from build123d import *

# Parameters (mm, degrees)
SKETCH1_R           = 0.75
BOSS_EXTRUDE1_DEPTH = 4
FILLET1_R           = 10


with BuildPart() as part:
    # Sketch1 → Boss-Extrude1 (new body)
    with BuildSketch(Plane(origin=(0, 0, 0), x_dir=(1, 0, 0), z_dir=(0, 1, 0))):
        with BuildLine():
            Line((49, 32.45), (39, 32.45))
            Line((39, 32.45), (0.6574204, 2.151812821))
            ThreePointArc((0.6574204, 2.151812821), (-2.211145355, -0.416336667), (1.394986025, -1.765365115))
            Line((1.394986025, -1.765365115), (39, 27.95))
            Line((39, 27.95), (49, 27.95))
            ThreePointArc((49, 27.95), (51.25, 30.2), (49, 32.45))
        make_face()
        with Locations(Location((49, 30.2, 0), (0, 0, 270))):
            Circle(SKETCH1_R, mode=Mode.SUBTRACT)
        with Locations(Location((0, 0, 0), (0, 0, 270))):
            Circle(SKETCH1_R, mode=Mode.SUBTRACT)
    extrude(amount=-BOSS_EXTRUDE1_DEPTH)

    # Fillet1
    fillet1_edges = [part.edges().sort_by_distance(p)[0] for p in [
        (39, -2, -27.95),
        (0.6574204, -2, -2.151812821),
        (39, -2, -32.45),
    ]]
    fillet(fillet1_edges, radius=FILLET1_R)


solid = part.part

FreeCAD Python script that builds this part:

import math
import FreeCAD as App
import Part
import Sketcher

V = App.Vector


def edges_at(feature, points):
    """Names of the edges that pass closest to the given points."""
    edges = feature.Shape.Edges
    near = lambda p: min(range(len(edges)), key=lambda i: edges[i].distToShape(Part.Vertex(*p))[0])
    return sorted({f"Edge{near(p) + 1}" for p in points})

doc = App.newDocument("Part")
body = doc.addObject("PartDesign::Body", "Body")

# Sketch on XZ plane
sketch1 = body.newObject("Sketcher::SketchObject", "Sketch")
sketch1.AttachmentSupport = (doc.getObject("XZ_Plane"), [""])
sketch1.MapMode = "FlatFace"
sketch1.addGeometry(Part.LineSegment(V(49, -32.5, 0), V(39, -32.5, 0)), False)
sketch1.addGeometry(Part.LineSegment(V(39, -32.5, 0), V(0.7, -2.2, 0)), False)
sketch1.addGeometry(Part.ArcOfCircle(Part.Circle(V(0, 0, 0), V(0, 0, 1), 2.2), math.radians(52), math.radians(287)), False)
sketch1.addGeometry(Part.LineSegment(V(1.4, 1.8, 0), V(39, -27.9, 0)), False)
sketch1.addGeometry(Part.LineSegment(V(39, -27.9, 0), V(49, -27.9, 0)), False)
sketch1.addGeometry(Part.ArcOfCircle(Part.Circle(V(49, -30.2, 0), V(0, 0, 1), 2.2), math.radians(-90), math.radians(90)), False)
sketch1.addGeometry(Part.Circle(V(0, 0, 0), V(0, 0, 1), 0.8), False)
sketch1.addGeometry(Part.Circle(V(49, -30.2, 0), V(0, 0, 1), 0.8), False)
sketch1.addConstraint(Sketcher.Constraint("Coincident", 0, 2, 1, 1))
sketch1.addConstraint(Sketcher.Constraint("Coincident", 1, 2, 2, 2))
sketch1.addConstraint(Sketcher.Constraint("Tangent", 2, 1, 3, 1))
sketch1.addConstraint(Sketcher.Constraint("Coincident", 3, 2, 4, 1))
sketch1.addConstraint(Sketcher.Constraint("Tangent", 4, 2, 5, 2))
sketch1.addConstraint(Sketcher.Constraint("Tangent", 5, 1, 0, 1))
sketch1.addConstraint(Sketcher.Constraint("Horizontal", 0))
sketch1.addConstraint(Sketcher.Constraint("Horizontal", 4))
sketch1.addConstraint(Sketcher.Constraint("Coincident", 2, 3, -1, 1))
sketch1.addConstraint(Sketcher.Constraint("Coincident", 6, 3, -1, 1))
sketch1.addConstraint(Sketcher.Constraint("Coincident", 7, 3, 5, 3))
sketch1.addConstraint(Sketcher.Constraint("Equal", 2, 5))
sketch1.addConstraint(Sketcher.Constraint("Equal", 6, 7))
sketch1.addConstraint(Sketcher.Constraint("Parallel", 1, 3))
sketch1.addConstraint(Sketcher.Constraint("Vertical", 0, 2, 3, 2))
sketch1.addConstraint(Sketcher.Constraint("Diameter", 6, 1.5))
sketch1.addConstraint(Sketcher.Constraint("DistanceX", 0, 2, 0, 1, 10.0))
sketch1.addConstraint(Sketcher.Constraint("Radius", 2, 2.25))
sketch1.addConstraint(Sketcher.Constraint("DistanceX", -1, 1, 5, 3, 49.0))
sketch1.addConstraint(Sketcher.Constraint("DistanceY", 5, 3, -1, 1, 30.2))
pad1 = body.newObject("PartDesign::Pad", "Pad")
pad1.Profile = sketch1
pad1.Length = 4
doc.recompute()

fillet = body.newObject("PartDesign::Fillet", "Fillet")
fillet.Base = (pad1, edges_at(pad1, [(39, -2, -27.95), (0.657, -2, -2.152), (39, -2, -32.45)]))
fillet.Radius = 10

doc.recompute()
